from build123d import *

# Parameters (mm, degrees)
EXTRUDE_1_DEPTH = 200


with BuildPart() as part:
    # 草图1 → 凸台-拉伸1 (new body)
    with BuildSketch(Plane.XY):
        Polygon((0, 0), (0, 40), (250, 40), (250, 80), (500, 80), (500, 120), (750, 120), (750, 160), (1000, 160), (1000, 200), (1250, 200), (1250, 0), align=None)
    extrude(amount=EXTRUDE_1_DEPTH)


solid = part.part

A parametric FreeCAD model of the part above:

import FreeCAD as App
import Part
import Sketcher
Q = App.Units.Quantity

doc = App.newDocument("Part")
body = doc.addObject("PartDesign::Body", "Body")

sketch1 = body.newObject("Sketcher::SketchObject", "Sketch")
sketch1.AttachmentSupport = (doc.getObject("XY_Plane"), [""])
sketch1.MapMode = "FlatFace"
sketch1.addGeometry(Part.LineSegment(App.Vector(0, 40, 0), App.Vector(0, 0, 0)), False)
sketch1.addGeometry(Part.LineSegment(App.Vector(0, 0, 0), App.Vector(1250, 0, 0)), False)
sketch1.addGeometry(Part.LineSegment(App.Vector(1250, 0, 0), App.Vector(1250, 200, 0)), False)
sketch1.addGeometry(Part.LineSegment(App.Vector(1250, 200, 0), App.Vector(1000, 200, 0)), False)
sketch1.addGeometry(Part.LineSegment(App.Vector(1000, 200, 0), App.Vector(1000, 160, 0)), False)
sketch1.addGeometry(Part.LineSegment(App.Vector(1000, 160, 0), App.Vector(750, 160, 0)), False)
sketch1.addGeometry(Part.LineSegment(App.Vector(750, 160, 0), App.Vector(750, 120, 0)), False)
sketch1.addGeometry(Part.LineSegment(App.Vector(750, 120, 0), App.Vector(500, 120, 0)), False)
sketch1.addGeometry(Part.LineSegment(App.Vector(500, 120, 0), App.Vector(500, 80, 0)), False)
sketch1.addGeometry(Part.LineSegment(App.Vector(500, 80, 0), App.Vector(250, 80, 0)), False)
sketch1.addGeometry(Part.LineSegment(App.Vector(250, 80, 0), App.Vector(250, 40, 0)), False)
sketch1.addGeometry(Part.LineSegment(App.Vector(250, 40, 0), App.Vector(0, 40, 0)), False)
sketch1.addConstraint(Sketcher.Constraint("Coincident", 0, 2, 1, 1))
sketch1.addConstraint(Sketcher.Constraint("Coincident", 1, 2, 2, 1))
sketch1.addConstraint(Sketcher.Constraint("Coincident", 2, 2, 3, 1))
sketch1.addConstraint(Sketcher.Constraint("Coincident", 3, 2, 4, 1))
sketch1.addConstraint(Sketcher.Constraint("Coincident", 4, 2, 5, 1))
sketch1.addConstraint(Sketcher.Constraint("Coincident", 5, 2, 6, 1))
sketch1.addConstraint(Sketcher.Constraint("Coincident", 6, 2, 7, 1))
sketch1.addConstraint(Sketcher.Constraint("Coincident", 7, 2, 8, 1))
sketch1.addConstraint(Sketcher.Constraint("Coincident", 8, 2, 9, 1))
sketch1.addConstraint(Sketcher.Constraint("Coincident", 9, 2, 10, 1))
sketch1.addConstraint(Sketcher.Constraint("Coincident", 10, 2, 11, 1))
sketch1.addConstraint(Sketcher.Constraint("Coincident", 11, 2, 0, 1))
sketch1.addConstraint(Sketcher.Constraint("Vertical", 0))
sketch1.addConstraint(Sketcher.Constraint("Horizontal", 1))
sketch1.addConstraint(Sketcher.Constraint("Vertical", 2))
sketch1.addConstraint(Sketcher.Constraint("Horizontal", 3))
sketch1.addConstraint(Sketcher.Constraint("Vertical", 4))
sketch1.addConstraint(Sketcher.Constraint("Horizontal", 5))
sketch1.addConstraint(Sketcher.Constraint("Vertical", 6))
sketch1.addConstraint(Sketcher.Constraint("Horizontal", 7))
sketch1.addConstraint(Sketcher.Constraint("Vertical", 8))
sketch1.addConstraint(Sketcher.Constraint("Horizontal", 9))
sketch1.addConstraint(Sketcher.Constraint("Vertical", 10))
sketch1.addConstraint(Sketcher.Constraint("Horizontal", 11))
sketch1.addConstraint(Sketcher.Constraint("Coincident", 0, 2, -1, 1))
sketch1.addConstraint(Sketcher.Constraint("Equal", 3, 5))
sketch1.addConstraint(Sketcher.Constraint("Equal", 5, 7))
sketch1.addConstraint(Sketcher.Constraint("Equal", 7, 9))
sketch1.addConstraint(Sketcher.Constraint("Equal", 9, 11))
sketch1.addConstraint(Sketcher.Constraint("Equal", 0, 4))
sketch1.addConstraint(Sketcher.Constraint("Equal", 4, 6))
sketch1.addConstraint(Sketcher.Constraint("Equal", 6, 8))
sketch1.addConstraint(Sketcher.Constraint("Equal", 8, 10))
sketch1.addConstraint(Sketcher.Constraint("DistanceX", 1, 1, 1, 2, Q("1250 mm")))
sketch1.addConstraint(Sketcher.Constraint("DistanceY", 0, 2, 0, 1, Q("40 mm")))
pad1 = body.newObject("PartDesign::Pad", "Pad")
pad1.Profile = sketch1
pad1.Length = 200

doc.recompute()
